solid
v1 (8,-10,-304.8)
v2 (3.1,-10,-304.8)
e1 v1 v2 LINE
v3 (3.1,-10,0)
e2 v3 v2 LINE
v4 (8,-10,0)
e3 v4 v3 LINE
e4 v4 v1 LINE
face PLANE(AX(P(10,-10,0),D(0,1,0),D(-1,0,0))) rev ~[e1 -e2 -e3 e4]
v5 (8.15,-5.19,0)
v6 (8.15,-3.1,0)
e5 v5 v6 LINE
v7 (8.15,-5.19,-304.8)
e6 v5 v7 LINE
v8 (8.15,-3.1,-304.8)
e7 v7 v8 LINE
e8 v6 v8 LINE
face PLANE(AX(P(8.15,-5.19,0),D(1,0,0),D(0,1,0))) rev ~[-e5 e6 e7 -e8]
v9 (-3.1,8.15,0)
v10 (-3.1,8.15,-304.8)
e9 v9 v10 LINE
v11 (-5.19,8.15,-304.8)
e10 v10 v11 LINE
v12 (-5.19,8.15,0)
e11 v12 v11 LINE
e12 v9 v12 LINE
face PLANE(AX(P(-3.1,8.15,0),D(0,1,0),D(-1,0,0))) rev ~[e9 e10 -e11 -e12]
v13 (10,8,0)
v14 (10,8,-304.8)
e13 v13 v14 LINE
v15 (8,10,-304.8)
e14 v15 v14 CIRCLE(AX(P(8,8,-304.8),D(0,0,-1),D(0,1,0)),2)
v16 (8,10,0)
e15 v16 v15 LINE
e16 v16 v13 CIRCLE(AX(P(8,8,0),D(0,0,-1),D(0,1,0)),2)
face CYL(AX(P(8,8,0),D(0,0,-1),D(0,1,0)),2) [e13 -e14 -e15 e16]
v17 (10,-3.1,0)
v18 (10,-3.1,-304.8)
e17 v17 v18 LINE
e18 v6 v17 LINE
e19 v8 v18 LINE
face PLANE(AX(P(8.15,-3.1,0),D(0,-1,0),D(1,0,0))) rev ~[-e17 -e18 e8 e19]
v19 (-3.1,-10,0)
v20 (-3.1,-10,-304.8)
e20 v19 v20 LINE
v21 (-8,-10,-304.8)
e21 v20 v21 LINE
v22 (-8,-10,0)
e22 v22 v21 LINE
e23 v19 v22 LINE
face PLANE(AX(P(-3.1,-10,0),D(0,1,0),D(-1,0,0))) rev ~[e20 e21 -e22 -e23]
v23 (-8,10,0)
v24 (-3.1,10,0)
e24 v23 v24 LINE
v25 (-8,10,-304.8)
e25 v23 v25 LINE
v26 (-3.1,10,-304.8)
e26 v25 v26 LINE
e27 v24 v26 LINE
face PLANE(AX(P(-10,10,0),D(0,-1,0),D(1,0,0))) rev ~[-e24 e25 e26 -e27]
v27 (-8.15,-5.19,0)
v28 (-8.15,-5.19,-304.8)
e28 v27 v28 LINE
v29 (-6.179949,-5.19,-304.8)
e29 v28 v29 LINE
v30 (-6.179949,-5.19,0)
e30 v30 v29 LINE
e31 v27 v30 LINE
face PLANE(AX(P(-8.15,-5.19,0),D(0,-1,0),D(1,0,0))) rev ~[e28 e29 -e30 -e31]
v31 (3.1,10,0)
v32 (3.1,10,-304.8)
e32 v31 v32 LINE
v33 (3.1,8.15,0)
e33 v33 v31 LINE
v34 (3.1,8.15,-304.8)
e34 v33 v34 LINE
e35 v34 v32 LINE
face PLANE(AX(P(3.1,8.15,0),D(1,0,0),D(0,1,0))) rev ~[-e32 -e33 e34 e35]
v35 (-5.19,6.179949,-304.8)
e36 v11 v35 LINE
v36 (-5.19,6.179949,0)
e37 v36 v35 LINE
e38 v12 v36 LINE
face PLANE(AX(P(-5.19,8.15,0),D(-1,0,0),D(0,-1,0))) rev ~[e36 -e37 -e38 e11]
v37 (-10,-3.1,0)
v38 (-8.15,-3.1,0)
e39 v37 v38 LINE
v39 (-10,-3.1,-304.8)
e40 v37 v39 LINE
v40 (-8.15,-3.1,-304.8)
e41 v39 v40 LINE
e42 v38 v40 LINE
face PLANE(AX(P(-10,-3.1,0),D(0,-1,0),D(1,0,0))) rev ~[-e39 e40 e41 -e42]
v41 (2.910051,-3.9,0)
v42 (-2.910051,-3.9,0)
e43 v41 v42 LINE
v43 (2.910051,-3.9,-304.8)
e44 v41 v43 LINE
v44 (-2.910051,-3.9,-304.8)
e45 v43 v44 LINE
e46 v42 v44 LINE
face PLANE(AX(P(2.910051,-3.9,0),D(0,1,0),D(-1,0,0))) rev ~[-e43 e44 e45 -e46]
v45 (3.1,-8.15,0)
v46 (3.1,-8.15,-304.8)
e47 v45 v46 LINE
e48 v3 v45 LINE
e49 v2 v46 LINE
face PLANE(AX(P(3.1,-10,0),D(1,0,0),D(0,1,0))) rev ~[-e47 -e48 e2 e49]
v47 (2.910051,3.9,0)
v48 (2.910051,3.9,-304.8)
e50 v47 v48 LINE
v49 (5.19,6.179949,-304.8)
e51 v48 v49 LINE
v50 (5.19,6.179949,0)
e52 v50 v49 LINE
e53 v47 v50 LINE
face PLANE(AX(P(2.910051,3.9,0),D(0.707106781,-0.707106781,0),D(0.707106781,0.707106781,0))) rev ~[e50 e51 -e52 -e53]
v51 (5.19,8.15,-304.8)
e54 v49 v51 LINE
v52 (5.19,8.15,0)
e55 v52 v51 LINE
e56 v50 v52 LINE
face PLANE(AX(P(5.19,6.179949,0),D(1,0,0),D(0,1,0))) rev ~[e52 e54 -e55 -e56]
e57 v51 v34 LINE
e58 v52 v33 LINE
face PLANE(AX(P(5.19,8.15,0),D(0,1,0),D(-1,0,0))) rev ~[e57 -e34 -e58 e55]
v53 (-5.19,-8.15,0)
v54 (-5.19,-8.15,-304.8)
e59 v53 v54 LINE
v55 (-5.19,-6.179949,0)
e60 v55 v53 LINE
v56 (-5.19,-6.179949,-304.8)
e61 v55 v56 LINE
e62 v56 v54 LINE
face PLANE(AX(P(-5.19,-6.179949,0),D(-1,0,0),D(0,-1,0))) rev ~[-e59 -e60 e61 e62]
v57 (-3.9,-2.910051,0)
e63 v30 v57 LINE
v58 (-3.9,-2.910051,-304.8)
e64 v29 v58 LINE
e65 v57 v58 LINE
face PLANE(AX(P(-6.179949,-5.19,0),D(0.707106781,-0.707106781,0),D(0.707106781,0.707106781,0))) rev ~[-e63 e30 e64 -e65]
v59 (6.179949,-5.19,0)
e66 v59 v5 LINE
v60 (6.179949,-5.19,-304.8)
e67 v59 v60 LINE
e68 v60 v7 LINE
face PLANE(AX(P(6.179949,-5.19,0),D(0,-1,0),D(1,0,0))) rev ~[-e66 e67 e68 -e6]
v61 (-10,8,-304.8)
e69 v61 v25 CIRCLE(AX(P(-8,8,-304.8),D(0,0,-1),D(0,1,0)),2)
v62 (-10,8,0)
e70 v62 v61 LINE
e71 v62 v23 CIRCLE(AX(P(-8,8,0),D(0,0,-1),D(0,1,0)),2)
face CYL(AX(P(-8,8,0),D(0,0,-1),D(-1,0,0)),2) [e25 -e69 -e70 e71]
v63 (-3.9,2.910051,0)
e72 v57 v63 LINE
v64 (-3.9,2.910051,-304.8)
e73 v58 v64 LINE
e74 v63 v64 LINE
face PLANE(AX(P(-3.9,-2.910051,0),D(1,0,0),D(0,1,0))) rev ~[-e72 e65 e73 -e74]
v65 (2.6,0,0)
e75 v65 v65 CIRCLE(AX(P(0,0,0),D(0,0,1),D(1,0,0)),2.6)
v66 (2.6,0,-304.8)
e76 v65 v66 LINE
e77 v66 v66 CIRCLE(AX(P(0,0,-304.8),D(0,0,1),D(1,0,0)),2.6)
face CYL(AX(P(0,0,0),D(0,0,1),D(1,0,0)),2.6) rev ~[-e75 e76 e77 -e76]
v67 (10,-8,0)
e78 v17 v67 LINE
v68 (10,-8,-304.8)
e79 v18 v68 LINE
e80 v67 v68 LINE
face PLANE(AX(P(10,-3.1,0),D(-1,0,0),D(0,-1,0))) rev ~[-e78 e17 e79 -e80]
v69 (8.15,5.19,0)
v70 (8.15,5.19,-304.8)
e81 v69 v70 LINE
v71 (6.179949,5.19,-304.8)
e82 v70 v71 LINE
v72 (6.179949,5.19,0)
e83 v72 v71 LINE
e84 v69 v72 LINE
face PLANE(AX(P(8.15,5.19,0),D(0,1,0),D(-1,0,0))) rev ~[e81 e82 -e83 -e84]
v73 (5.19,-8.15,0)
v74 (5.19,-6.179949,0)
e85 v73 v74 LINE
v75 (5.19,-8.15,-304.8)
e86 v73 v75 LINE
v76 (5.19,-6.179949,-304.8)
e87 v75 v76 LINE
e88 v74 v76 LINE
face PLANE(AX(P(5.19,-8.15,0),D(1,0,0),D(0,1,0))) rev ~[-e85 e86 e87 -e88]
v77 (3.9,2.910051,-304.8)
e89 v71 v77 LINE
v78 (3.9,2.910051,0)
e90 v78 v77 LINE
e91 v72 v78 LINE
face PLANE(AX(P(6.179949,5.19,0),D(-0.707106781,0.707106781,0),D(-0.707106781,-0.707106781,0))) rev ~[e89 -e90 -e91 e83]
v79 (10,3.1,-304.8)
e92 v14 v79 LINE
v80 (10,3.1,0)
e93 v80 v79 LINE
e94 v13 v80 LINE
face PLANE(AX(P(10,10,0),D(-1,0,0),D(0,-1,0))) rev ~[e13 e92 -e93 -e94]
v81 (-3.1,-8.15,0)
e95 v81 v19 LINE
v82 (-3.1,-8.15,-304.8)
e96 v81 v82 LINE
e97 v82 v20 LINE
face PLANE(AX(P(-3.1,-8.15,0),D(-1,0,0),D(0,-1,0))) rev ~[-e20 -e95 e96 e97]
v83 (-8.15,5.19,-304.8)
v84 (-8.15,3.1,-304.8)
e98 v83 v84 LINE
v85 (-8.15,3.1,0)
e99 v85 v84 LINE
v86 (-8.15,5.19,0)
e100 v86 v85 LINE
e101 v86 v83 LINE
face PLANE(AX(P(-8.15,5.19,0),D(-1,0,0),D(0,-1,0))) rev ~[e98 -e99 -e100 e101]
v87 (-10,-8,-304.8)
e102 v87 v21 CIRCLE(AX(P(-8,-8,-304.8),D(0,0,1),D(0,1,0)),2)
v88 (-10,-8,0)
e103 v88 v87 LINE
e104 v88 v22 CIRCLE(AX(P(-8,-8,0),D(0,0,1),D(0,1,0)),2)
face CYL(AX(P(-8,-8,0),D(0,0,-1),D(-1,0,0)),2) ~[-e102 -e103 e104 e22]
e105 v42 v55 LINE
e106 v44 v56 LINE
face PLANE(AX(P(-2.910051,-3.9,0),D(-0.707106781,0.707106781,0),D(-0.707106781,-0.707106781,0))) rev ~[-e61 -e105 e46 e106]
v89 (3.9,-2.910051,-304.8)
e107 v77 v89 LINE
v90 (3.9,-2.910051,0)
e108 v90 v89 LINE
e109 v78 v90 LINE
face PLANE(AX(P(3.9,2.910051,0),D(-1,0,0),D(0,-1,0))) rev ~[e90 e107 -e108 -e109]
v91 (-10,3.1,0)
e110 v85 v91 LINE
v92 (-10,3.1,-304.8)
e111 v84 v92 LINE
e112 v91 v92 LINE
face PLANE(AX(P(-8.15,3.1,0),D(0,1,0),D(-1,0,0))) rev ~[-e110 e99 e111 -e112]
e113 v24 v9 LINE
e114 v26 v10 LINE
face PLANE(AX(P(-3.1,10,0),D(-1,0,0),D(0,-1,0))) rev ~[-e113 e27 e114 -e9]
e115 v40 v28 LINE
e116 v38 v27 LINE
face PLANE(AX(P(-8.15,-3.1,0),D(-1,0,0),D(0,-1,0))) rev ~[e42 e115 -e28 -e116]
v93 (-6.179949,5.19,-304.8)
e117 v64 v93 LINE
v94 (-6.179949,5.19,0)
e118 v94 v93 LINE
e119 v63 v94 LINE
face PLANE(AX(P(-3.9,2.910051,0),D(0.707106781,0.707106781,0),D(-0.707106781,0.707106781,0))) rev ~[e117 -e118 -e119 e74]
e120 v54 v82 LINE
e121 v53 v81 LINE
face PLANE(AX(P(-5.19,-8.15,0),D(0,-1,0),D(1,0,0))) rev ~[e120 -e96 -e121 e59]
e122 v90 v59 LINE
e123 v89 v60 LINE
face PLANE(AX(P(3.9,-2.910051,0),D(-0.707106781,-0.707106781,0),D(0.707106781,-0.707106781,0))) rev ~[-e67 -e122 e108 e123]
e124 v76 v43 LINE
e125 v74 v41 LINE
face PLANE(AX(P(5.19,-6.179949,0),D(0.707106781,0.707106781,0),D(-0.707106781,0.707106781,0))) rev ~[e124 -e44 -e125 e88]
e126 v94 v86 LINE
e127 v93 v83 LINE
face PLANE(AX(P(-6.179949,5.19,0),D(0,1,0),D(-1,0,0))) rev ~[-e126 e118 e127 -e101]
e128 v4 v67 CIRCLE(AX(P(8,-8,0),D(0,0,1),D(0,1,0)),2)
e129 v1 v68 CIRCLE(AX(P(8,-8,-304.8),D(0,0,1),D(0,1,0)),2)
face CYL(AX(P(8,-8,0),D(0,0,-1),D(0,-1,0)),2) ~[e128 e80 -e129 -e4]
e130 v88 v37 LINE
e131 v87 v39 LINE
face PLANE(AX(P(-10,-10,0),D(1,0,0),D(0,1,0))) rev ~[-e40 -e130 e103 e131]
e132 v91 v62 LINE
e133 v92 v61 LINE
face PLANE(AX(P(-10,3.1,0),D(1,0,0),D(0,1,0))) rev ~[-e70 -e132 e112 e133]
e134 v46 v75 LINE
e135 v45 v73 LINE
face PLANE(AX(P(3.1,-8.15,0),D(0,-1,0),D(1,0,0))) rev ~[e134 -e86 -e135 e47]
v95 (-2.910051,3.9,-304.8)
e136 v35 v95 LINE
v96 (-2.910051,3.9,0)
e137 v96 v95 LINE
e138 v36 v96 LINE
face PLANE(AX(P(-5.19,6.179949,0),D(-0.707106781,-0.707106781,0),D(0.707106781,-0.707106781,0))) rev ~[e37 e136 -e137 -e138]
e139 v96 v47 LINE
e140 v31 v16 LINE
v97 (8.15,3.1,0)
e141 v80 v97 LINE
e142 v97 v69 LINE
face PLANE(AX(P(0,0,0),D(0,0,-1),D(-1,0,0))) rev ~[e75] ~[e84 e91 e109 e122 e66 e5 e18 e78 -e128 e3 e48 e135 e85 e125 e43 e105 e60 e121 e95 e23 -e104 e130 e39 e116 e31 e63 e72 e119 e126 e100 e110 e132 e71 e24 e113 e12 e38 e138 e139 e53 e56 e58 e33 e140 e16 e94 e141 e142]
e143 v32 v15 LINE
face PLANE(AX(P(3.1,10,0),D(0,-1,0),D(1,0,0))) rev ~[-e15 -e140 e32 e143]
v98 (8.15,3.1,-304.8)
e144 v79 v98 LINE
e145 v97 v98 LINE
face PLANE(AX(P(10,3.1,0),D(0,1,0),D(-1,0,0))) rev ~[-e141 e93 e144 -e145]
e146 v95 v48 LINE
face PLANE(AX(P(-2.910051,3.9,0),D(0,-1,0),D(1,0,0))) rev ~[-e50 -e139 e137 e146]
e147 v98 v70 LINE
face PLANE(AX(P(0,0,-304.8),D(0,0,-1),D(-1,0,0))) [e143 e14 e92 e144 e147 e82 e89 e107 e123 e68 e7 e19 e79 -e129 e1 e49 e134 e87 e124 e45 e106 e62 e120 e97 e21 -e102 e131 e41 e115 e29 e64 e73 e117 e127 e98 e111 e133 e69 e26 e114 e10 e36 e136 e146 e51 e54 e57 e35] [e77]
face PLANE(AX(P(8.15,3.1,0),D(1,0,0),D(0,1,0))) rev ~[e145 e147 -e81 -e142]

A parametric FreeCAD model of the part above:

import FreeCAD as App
import Part
import Sketcher

V = App.Vector


def edges_at(feature, points):
    """Names of the edges that pass closest to the given points."""
    edges = feature.Shape.Edges
    near = lambda p: min(range(len(edges)), key=lambda i: edges[i].distToShape(Part.Vertex(*p))[0])
    return sorted({f"Edge{near(p) + 1}" for p in points})

doc = App.newDocument("Part")
body = doc.addObject("PartDesign::Body", "Body")

sketch1 = body.newObject("Sketcher::SketchObject", "Sketch")
sketch1.AttachmentSupport = (doc.getObject("XY_Plane"), [""])
sketch1.MapMode = "FlatFace"
sketch1.addGeometry([
    Part.LineSegment(V(-6.2, 5.2, 0), V(-3.9, 2.9, 0)),
    Part.LineSegment(V(-3.9, 2.9, 0), V(-3.9, -2.9, 0)),
    Part.LineSegment(V(-3.9, -2.9, 0), V(-6.2, -5.2, 0)),
    Part.LineSegment(V(-6.2, -5.2, 0), V(-8.2, -5.2, 0)),
    Part.LineSegment(V(-8.2, -5.2, 0), V(-8.2, -3.1, 0)),
    Part.LineSegment(V(-8.2, -3.1, 0), V(-10, -3.1, 0)),
    Part.LineSegment(V(-10, -3.1, 0), V(-10, -10, 0)),
    Part.LineSegment(V(-10, -10, 0), V(-3.1, -10, 0)),
    Part.LineSegment(V(-3.1, -10, 0), V(-3.1, -8.2, 0)),
    Part.LineSegment(V(-3.1, -8.2, 0), V(-5.2, -8.2, 0)),
    Part.LineSegment(V(-5.2, -8.2, 0), V(-5.2, -6.2, 0)),
    Part.LineSegment(V(-5.2, -6.2, 0), V(-2.9, -3.9, 0)),
    Part.LineSegment(V(-2.9, -3.9, 0), V(2.9, -3.9, 0)),
    Part.LineSegment(V(2.9, -3.9, 0), V(5.2, -6.2, 0)),
    Part.LineSegment(V(5.2, -6.2, 0), V(5.2, -8.2, 0)),
    Part.LineSegment(V(5.2, -8.2, 0), V(3.1, -8.2, 0)),
    Part.LineSegment(V(3.1, -8.2, 0), V(3.1, -10, 0)),
    Part.LineSegment(V(3.1, -10, 0), V(10, -10, 0)),
    Part.LineSegment(V(10, -10, 0), V(10, -3.1, 0)),
    Part.LineSegment(V(10, -3.1, 0), V(8.2, -3.1, 0)),
    Part.LineSegment(V(8.2, -3.1, 0), V(8.2, -5.2, 0)),
    Part.LineSegment(V(8.2, -5.2, 0), V(6.2, -5.2, 0)),
    Part.LineSegment(V(6.2, -5.2, 0), V(3.9, -2.9, 0)),
    Part.LineSegment(V(3.9, -2.9, 0), V(3.9, 2.9, 0)),
    Part.LineSegment(V(3.9, 2.9, 0), V(6.2, 5.2, 0)),
    Part.LineSegment(V(6.2, 5.2, 0), V(8.2, 5.2, 0)),
    Part.LineSegment(V(8.2, 5.2, 0), V(8.2, 3.1, 0)),
    Part.LineSegment(V(8.2, 3.1, 0), V(10, 3.1, 0)),
    Part.LineSegment(V(10, 3.1, 0), V(10, 10, 0)),
    Part.LineSegment(V(10, 10, 0), V(3.1, 10, 0)),
    Part.LineSegment(V(3.1, 10, 0), V(3.1, 8.2, 0)),
    Part.LineSegment(V(3.1, 8.2, 0), V(5.2, 8.2, 0)),
    Part.LineSegment(V(5.2, 8.2, 0), V(5.2, 6.2, 0)),
    Part.LineSegment(V(5.2, 6.2, 0), V(2.9, 3.9, 0)),
    Part.LineSegment(V(2.9, 3.9, 0), V(-2.9, 3.9, 0)),
    Part.LineSegment(V(-2.9, 3.9, 0), V(-5.2, 6.2, 0)),
    Part.LineSegment(V(-5.2, 6.2, 0), V(-5.2, 8.2, 0)),
    Part.LineSegment(V(-5.2, 8.2, 0), V(-3.1, 8.2, 0)),
    Part.LineSegment(V(-3.1, 8.2, 0), V(-3.1, 10, 0)),
    Part.LineSegment(V(-3.1, 10, 0), V(-10, 10, 0)),
    Part.LineSegment(V(-10, 10, 0), V(-10, 3.1, 0)),
    Part.LineSegment(V(-10, 3.1, 0), V(-8.2, 3.1, 0)),
    Part.LineSegment(V(-8.2, 3.1, 0), V(-8.2, 5.2, 0)),
    Part.LineSegment(V(-8.2, 5.2, 0), V(-6.2, 5.2, 0)),
    Part.Circle(V(0, 0, 0), V(0, 0, 1), 2.6),
], False)
sketch1.addConstraint([
    Sketcher.Constraint("Coincident", 0, 2, 1, 1),
    Sketcher.Constraint("Coincident", 1, 2, 2, 1),
    Sketcher.Constraint("Coincident", 2, 2, 3, 1),
    Sketcher.Constraint("Coincident", 3, 2, 4, 1),
    Sketcher.Constraint("Coincident", 4, 2, 5, 1),
    Sketcher.Constraint("Coincident", 5, 2, 6, 1),
    Sketcher.Constraint("Coincident", 6, 2, 7, 1),
    Sketcher.Constraint("Coincident", 7, 2, 8, 1),
    Sketcher.Constraint("Coincident", 8, 2, 9, 1),
    Sketcher.Constraint("Coincident", 9, 2, 10, 1),
    Sketcher.Constraint("Coincident", 10, 2, 11, 1),
    Sketcher.Constraint("Coincident", 11, 2, 12, 1),
    Sketcher.Constraint("Coincident", 12, 2, 13, 1),
    Sketcher.Constraint("Coincident", 13, 2, 14, 1),
    Sketcher.Constraint("Coincident", 14, 2, 15, 1),
    Sketcher.Constraint("Coincident", 15, 2, 16, 1),
    Sketcher.Constraint("Coincident", 16, 2, 17, 1),
    Sketcher.Constraint("Coincident", 17, 2, 18, 1),
    Sketcher.Constraint("Coincident", 18, 2, 19, 1),
    Sketcher.Constraint("Coincident", 19, 2, 20, 1),
    Sketcher.Constraint("Coincident", 20, 2, 21, 1),
    Sketcher.Constraint("Coincident", 21, 2, 22, 1),
    Sketcher.Constraint("Coincident", 22, 2, 23, 1),
    Sketcher.Constraint("Coincident", 23, 2, 24, 1),
    Sketcher.Constraint("Coincident", 24, 2, 25, 1),
    Sketcher.Constraint("Coincident", 25, 2, 26, 1),
    Sketcher.Constraint("Coincident", 26, 2, 27, 1),
    Sketcher.Constraint("Coincident", 27, 2, 28, 1),
    Sketcher.Constraint("Coincident", 28, 2, 29, 1),
    Sketcher.Constraint("Coincident", 29, 2, 30, 1),
    Sketcher.Constraint("Coincident", 30, 2, 31, 1),
    Sketcher.Constraint("Coincident", 31, 2, 32, 1),
    Sketcher.Constraint("Coincident", 32, 2, 33, 1),
    Sketcher.Constraint("Coincident", 33, 2, 34, 1),
    Sketcher.Constraint("Coincident", 34, 2, 35, 1),
    Sketcher.Constraint("Coincident", 35, 2, 36, 1),
    Sketcher.Constraint("Coincident", 36, 2, 37, 1),
    Sketcher.Constraint("Coincident", 37, 2, 38, 1),
    Sketcher.Constraint("Coincident", 38, 2, 39, 1),
    Sketcher.Constraint("Coincident", 39, 2, 40, 1),
    Sketcher.Constraint("Coincident", 40, 2, 41, 1),
    Sketcher.Constraint("Coincident", 41, 2, 42, 1),
    Sketcher.Constraint("Coincident", 42, 2, 43, 1),
    Sketcher.Constraint("Coincident", 43, 2, 0, 1),
    Sketcher.Constraint("Vertical", 1),
    Sketcher.Constraint("Horizontal", 3),
    Sketcher.Constraint("Vertical", 4),
    Sketcher.Constraint("Horizontal", 5),
    Sketcher.Constraint("Vertical", 6),
    Sketcher.Constraint("Horizontal", 7),
    Sketcher.Constraint("Vertical", 8),
    Sketcher.Constraint("Horizontal", 9),
    Sketcher.Constraint("Vertical", 10),
    Sketcher.Constraint("Horizontal", 12),
    Sketcher.Constraint("Vertical", 14),
    Sketcher.Constraint("Horizontal", 15),
    Sketcher.Constraint("Vertical", 16),
    Sketcher.Constraint("Horizontal", 17),
    Sketcher.Constraint("Vertical", 18),
    Sketcher.Constraint("Horizontal", 19),
    Sketcher.Constraint("Vertical", 20),
    Sketcher.Constraint("Horizontal", 21),
    Sketcher.Constraint("Vertical", 23),
    Sketcher.Constraint("Horizontal", 25),
    Sketcher.Constraint("Vertical", 26),
    Sketcher.Constraint("Horizontal", 27),
    Sketcher.Constraint("Vertical", 28),
    Sketcher.Constraint("Horizontal", 29),
    Sketcher.Constraint("Vertical", 30),
    Sketcher.Constraint("Horizontal", 31),
    Sketcher.Constraint("Vertical", 32),
    Sketcher.Constraint("Horizontal", 34),
    Sketcher.Constraint("Vertical", 36),
    Sketcher.Constraint("Horizontal", 37),
    Sketcher.Constraint("Vertical", 38),
    Sketcher.Constraint("Horizontal", 39),
    Sketcher.Constraint("Vertical", 40),
    Sketcher.Constraint("Horizontal", 41),
    Sketcher.Constraint("Vertical", 42),
    Sketcher.Constraint("Horizontal", 43),
    Sketcher.Constraint("Coincident", 44, 3, -1, 1),
    Sketcher.Constraint("Symmetric", 0, 2, 22, 2, -1, 1),
    Sketcher.Constraint("Symmetric", 2, 2, 24, 2, -1, 1),
    Sketcher.Constraint("Symmetric", 4, 2, 26, 2, -1, 1),
    Sketcher.Constraint("Symmetric", 6, 2, 28, 2, -1, 1),
    Sketcher.Constraint("Symmetric", 8, 2, 30, 2, -1, 1),
    Sketcher.Constraint("Symmetric", 10, 2, 32, 2, -1, 1),
    Sketcher.Constraint("Symmetric", 11, 2, 33, 2, -1, 1),
    Sketcher.Constraint("Symmetric", 13, 2, 35, 2, -1, 1),
    Sketcher.Constraint("Symmetric", 15, 2, 37, 2, -1, 1),
    Sketcher.Constraint("Symmetric", 17, 2, 39, 2, -1, 1),
    Sketcher.Constraint("Symmetric", 19, 2, 41, 2, -1, 1),
    Sketcher.Constraint("Symmetric", 21, 2, 43, 2, -1, 1),
    Sketcher.Constraint("Symmetric", 10, 2, 13, 2, -2),
    Sketcher.Constraint("Symmetric", 8, 2, 15, 2, -2),
    Sketcher.Constraint("Symmetric", 6, 2, 17, 2, -2),
    Sketcher.Constraint("Symmetric", 4, 2, 19, 2, -2),
    Sketcher.Constraint("Symmetric", 2, 2, 21, 2, -2),
    Sketcher.Constraint("Perpendicular", 0, 2),
    Sketcher.Constraint("Parallel", 2, 11),
    Sketcher.Constraint("Perpendicular", 11, 13),
    Sketcher.Constraint("Perpendicular", 22, 24),
    Sketcher.Constraint("Perpendicular", 33, 35),
    Sketcher.Constraint("Horizontal", 1, 2, 22, 2),
    Sketcher.Constraint("Equal", 34, 1),
    Sketcher.Constraint("Equal", 37, 4),
    Sketcher.Constraint("Equal", 39, 6),
    Sketcher.Constraint("Equal", 41, 8),
    Sketcher.Constraint("Equal", 43, 10),
    Sketcher.Constraint("Equal", 2, 11),
    Sketcher.Constraint("Diameter", 44, 5.2),
    Sketcher.Constraint("DistanceX", 7, 1, 7, 2, 6.9),
    Sketcher.Constraint("DistanceX", 5, 2, -1, 1, 10.0),
    Sketcher.Constraint("DistanceX", 5, 2, 5, 1, 1.85),
    Sketcher.Constraint("DistanceX", 9, 2, 9, 1, 2.09),
    Sketcher.Constraint("DistanceX", 0, 2, -1, 1, 3.9),
    Sketcher.Constraint("DistanceX", 12, 1, 12, 2, 5.820101),
])
pad1 = body.newObject("PartDesign::Pad", "Pad")
pad1.Profile = sketch1
pad1.Length = 304.8
pad1.Reversed = True
doc.recompute()

fillet = body.newObject("PartDesign::Fillet", "Fillet")
fillet.Base = (pad1, edges_at(pad1, [
    (-10, 10, -152.4),
    (10, 10, -152.4),
    (10, -10, -152.4),
    (-10, -10, -152.4),
]))
fillet.Radius = 2

doc.recompute()
